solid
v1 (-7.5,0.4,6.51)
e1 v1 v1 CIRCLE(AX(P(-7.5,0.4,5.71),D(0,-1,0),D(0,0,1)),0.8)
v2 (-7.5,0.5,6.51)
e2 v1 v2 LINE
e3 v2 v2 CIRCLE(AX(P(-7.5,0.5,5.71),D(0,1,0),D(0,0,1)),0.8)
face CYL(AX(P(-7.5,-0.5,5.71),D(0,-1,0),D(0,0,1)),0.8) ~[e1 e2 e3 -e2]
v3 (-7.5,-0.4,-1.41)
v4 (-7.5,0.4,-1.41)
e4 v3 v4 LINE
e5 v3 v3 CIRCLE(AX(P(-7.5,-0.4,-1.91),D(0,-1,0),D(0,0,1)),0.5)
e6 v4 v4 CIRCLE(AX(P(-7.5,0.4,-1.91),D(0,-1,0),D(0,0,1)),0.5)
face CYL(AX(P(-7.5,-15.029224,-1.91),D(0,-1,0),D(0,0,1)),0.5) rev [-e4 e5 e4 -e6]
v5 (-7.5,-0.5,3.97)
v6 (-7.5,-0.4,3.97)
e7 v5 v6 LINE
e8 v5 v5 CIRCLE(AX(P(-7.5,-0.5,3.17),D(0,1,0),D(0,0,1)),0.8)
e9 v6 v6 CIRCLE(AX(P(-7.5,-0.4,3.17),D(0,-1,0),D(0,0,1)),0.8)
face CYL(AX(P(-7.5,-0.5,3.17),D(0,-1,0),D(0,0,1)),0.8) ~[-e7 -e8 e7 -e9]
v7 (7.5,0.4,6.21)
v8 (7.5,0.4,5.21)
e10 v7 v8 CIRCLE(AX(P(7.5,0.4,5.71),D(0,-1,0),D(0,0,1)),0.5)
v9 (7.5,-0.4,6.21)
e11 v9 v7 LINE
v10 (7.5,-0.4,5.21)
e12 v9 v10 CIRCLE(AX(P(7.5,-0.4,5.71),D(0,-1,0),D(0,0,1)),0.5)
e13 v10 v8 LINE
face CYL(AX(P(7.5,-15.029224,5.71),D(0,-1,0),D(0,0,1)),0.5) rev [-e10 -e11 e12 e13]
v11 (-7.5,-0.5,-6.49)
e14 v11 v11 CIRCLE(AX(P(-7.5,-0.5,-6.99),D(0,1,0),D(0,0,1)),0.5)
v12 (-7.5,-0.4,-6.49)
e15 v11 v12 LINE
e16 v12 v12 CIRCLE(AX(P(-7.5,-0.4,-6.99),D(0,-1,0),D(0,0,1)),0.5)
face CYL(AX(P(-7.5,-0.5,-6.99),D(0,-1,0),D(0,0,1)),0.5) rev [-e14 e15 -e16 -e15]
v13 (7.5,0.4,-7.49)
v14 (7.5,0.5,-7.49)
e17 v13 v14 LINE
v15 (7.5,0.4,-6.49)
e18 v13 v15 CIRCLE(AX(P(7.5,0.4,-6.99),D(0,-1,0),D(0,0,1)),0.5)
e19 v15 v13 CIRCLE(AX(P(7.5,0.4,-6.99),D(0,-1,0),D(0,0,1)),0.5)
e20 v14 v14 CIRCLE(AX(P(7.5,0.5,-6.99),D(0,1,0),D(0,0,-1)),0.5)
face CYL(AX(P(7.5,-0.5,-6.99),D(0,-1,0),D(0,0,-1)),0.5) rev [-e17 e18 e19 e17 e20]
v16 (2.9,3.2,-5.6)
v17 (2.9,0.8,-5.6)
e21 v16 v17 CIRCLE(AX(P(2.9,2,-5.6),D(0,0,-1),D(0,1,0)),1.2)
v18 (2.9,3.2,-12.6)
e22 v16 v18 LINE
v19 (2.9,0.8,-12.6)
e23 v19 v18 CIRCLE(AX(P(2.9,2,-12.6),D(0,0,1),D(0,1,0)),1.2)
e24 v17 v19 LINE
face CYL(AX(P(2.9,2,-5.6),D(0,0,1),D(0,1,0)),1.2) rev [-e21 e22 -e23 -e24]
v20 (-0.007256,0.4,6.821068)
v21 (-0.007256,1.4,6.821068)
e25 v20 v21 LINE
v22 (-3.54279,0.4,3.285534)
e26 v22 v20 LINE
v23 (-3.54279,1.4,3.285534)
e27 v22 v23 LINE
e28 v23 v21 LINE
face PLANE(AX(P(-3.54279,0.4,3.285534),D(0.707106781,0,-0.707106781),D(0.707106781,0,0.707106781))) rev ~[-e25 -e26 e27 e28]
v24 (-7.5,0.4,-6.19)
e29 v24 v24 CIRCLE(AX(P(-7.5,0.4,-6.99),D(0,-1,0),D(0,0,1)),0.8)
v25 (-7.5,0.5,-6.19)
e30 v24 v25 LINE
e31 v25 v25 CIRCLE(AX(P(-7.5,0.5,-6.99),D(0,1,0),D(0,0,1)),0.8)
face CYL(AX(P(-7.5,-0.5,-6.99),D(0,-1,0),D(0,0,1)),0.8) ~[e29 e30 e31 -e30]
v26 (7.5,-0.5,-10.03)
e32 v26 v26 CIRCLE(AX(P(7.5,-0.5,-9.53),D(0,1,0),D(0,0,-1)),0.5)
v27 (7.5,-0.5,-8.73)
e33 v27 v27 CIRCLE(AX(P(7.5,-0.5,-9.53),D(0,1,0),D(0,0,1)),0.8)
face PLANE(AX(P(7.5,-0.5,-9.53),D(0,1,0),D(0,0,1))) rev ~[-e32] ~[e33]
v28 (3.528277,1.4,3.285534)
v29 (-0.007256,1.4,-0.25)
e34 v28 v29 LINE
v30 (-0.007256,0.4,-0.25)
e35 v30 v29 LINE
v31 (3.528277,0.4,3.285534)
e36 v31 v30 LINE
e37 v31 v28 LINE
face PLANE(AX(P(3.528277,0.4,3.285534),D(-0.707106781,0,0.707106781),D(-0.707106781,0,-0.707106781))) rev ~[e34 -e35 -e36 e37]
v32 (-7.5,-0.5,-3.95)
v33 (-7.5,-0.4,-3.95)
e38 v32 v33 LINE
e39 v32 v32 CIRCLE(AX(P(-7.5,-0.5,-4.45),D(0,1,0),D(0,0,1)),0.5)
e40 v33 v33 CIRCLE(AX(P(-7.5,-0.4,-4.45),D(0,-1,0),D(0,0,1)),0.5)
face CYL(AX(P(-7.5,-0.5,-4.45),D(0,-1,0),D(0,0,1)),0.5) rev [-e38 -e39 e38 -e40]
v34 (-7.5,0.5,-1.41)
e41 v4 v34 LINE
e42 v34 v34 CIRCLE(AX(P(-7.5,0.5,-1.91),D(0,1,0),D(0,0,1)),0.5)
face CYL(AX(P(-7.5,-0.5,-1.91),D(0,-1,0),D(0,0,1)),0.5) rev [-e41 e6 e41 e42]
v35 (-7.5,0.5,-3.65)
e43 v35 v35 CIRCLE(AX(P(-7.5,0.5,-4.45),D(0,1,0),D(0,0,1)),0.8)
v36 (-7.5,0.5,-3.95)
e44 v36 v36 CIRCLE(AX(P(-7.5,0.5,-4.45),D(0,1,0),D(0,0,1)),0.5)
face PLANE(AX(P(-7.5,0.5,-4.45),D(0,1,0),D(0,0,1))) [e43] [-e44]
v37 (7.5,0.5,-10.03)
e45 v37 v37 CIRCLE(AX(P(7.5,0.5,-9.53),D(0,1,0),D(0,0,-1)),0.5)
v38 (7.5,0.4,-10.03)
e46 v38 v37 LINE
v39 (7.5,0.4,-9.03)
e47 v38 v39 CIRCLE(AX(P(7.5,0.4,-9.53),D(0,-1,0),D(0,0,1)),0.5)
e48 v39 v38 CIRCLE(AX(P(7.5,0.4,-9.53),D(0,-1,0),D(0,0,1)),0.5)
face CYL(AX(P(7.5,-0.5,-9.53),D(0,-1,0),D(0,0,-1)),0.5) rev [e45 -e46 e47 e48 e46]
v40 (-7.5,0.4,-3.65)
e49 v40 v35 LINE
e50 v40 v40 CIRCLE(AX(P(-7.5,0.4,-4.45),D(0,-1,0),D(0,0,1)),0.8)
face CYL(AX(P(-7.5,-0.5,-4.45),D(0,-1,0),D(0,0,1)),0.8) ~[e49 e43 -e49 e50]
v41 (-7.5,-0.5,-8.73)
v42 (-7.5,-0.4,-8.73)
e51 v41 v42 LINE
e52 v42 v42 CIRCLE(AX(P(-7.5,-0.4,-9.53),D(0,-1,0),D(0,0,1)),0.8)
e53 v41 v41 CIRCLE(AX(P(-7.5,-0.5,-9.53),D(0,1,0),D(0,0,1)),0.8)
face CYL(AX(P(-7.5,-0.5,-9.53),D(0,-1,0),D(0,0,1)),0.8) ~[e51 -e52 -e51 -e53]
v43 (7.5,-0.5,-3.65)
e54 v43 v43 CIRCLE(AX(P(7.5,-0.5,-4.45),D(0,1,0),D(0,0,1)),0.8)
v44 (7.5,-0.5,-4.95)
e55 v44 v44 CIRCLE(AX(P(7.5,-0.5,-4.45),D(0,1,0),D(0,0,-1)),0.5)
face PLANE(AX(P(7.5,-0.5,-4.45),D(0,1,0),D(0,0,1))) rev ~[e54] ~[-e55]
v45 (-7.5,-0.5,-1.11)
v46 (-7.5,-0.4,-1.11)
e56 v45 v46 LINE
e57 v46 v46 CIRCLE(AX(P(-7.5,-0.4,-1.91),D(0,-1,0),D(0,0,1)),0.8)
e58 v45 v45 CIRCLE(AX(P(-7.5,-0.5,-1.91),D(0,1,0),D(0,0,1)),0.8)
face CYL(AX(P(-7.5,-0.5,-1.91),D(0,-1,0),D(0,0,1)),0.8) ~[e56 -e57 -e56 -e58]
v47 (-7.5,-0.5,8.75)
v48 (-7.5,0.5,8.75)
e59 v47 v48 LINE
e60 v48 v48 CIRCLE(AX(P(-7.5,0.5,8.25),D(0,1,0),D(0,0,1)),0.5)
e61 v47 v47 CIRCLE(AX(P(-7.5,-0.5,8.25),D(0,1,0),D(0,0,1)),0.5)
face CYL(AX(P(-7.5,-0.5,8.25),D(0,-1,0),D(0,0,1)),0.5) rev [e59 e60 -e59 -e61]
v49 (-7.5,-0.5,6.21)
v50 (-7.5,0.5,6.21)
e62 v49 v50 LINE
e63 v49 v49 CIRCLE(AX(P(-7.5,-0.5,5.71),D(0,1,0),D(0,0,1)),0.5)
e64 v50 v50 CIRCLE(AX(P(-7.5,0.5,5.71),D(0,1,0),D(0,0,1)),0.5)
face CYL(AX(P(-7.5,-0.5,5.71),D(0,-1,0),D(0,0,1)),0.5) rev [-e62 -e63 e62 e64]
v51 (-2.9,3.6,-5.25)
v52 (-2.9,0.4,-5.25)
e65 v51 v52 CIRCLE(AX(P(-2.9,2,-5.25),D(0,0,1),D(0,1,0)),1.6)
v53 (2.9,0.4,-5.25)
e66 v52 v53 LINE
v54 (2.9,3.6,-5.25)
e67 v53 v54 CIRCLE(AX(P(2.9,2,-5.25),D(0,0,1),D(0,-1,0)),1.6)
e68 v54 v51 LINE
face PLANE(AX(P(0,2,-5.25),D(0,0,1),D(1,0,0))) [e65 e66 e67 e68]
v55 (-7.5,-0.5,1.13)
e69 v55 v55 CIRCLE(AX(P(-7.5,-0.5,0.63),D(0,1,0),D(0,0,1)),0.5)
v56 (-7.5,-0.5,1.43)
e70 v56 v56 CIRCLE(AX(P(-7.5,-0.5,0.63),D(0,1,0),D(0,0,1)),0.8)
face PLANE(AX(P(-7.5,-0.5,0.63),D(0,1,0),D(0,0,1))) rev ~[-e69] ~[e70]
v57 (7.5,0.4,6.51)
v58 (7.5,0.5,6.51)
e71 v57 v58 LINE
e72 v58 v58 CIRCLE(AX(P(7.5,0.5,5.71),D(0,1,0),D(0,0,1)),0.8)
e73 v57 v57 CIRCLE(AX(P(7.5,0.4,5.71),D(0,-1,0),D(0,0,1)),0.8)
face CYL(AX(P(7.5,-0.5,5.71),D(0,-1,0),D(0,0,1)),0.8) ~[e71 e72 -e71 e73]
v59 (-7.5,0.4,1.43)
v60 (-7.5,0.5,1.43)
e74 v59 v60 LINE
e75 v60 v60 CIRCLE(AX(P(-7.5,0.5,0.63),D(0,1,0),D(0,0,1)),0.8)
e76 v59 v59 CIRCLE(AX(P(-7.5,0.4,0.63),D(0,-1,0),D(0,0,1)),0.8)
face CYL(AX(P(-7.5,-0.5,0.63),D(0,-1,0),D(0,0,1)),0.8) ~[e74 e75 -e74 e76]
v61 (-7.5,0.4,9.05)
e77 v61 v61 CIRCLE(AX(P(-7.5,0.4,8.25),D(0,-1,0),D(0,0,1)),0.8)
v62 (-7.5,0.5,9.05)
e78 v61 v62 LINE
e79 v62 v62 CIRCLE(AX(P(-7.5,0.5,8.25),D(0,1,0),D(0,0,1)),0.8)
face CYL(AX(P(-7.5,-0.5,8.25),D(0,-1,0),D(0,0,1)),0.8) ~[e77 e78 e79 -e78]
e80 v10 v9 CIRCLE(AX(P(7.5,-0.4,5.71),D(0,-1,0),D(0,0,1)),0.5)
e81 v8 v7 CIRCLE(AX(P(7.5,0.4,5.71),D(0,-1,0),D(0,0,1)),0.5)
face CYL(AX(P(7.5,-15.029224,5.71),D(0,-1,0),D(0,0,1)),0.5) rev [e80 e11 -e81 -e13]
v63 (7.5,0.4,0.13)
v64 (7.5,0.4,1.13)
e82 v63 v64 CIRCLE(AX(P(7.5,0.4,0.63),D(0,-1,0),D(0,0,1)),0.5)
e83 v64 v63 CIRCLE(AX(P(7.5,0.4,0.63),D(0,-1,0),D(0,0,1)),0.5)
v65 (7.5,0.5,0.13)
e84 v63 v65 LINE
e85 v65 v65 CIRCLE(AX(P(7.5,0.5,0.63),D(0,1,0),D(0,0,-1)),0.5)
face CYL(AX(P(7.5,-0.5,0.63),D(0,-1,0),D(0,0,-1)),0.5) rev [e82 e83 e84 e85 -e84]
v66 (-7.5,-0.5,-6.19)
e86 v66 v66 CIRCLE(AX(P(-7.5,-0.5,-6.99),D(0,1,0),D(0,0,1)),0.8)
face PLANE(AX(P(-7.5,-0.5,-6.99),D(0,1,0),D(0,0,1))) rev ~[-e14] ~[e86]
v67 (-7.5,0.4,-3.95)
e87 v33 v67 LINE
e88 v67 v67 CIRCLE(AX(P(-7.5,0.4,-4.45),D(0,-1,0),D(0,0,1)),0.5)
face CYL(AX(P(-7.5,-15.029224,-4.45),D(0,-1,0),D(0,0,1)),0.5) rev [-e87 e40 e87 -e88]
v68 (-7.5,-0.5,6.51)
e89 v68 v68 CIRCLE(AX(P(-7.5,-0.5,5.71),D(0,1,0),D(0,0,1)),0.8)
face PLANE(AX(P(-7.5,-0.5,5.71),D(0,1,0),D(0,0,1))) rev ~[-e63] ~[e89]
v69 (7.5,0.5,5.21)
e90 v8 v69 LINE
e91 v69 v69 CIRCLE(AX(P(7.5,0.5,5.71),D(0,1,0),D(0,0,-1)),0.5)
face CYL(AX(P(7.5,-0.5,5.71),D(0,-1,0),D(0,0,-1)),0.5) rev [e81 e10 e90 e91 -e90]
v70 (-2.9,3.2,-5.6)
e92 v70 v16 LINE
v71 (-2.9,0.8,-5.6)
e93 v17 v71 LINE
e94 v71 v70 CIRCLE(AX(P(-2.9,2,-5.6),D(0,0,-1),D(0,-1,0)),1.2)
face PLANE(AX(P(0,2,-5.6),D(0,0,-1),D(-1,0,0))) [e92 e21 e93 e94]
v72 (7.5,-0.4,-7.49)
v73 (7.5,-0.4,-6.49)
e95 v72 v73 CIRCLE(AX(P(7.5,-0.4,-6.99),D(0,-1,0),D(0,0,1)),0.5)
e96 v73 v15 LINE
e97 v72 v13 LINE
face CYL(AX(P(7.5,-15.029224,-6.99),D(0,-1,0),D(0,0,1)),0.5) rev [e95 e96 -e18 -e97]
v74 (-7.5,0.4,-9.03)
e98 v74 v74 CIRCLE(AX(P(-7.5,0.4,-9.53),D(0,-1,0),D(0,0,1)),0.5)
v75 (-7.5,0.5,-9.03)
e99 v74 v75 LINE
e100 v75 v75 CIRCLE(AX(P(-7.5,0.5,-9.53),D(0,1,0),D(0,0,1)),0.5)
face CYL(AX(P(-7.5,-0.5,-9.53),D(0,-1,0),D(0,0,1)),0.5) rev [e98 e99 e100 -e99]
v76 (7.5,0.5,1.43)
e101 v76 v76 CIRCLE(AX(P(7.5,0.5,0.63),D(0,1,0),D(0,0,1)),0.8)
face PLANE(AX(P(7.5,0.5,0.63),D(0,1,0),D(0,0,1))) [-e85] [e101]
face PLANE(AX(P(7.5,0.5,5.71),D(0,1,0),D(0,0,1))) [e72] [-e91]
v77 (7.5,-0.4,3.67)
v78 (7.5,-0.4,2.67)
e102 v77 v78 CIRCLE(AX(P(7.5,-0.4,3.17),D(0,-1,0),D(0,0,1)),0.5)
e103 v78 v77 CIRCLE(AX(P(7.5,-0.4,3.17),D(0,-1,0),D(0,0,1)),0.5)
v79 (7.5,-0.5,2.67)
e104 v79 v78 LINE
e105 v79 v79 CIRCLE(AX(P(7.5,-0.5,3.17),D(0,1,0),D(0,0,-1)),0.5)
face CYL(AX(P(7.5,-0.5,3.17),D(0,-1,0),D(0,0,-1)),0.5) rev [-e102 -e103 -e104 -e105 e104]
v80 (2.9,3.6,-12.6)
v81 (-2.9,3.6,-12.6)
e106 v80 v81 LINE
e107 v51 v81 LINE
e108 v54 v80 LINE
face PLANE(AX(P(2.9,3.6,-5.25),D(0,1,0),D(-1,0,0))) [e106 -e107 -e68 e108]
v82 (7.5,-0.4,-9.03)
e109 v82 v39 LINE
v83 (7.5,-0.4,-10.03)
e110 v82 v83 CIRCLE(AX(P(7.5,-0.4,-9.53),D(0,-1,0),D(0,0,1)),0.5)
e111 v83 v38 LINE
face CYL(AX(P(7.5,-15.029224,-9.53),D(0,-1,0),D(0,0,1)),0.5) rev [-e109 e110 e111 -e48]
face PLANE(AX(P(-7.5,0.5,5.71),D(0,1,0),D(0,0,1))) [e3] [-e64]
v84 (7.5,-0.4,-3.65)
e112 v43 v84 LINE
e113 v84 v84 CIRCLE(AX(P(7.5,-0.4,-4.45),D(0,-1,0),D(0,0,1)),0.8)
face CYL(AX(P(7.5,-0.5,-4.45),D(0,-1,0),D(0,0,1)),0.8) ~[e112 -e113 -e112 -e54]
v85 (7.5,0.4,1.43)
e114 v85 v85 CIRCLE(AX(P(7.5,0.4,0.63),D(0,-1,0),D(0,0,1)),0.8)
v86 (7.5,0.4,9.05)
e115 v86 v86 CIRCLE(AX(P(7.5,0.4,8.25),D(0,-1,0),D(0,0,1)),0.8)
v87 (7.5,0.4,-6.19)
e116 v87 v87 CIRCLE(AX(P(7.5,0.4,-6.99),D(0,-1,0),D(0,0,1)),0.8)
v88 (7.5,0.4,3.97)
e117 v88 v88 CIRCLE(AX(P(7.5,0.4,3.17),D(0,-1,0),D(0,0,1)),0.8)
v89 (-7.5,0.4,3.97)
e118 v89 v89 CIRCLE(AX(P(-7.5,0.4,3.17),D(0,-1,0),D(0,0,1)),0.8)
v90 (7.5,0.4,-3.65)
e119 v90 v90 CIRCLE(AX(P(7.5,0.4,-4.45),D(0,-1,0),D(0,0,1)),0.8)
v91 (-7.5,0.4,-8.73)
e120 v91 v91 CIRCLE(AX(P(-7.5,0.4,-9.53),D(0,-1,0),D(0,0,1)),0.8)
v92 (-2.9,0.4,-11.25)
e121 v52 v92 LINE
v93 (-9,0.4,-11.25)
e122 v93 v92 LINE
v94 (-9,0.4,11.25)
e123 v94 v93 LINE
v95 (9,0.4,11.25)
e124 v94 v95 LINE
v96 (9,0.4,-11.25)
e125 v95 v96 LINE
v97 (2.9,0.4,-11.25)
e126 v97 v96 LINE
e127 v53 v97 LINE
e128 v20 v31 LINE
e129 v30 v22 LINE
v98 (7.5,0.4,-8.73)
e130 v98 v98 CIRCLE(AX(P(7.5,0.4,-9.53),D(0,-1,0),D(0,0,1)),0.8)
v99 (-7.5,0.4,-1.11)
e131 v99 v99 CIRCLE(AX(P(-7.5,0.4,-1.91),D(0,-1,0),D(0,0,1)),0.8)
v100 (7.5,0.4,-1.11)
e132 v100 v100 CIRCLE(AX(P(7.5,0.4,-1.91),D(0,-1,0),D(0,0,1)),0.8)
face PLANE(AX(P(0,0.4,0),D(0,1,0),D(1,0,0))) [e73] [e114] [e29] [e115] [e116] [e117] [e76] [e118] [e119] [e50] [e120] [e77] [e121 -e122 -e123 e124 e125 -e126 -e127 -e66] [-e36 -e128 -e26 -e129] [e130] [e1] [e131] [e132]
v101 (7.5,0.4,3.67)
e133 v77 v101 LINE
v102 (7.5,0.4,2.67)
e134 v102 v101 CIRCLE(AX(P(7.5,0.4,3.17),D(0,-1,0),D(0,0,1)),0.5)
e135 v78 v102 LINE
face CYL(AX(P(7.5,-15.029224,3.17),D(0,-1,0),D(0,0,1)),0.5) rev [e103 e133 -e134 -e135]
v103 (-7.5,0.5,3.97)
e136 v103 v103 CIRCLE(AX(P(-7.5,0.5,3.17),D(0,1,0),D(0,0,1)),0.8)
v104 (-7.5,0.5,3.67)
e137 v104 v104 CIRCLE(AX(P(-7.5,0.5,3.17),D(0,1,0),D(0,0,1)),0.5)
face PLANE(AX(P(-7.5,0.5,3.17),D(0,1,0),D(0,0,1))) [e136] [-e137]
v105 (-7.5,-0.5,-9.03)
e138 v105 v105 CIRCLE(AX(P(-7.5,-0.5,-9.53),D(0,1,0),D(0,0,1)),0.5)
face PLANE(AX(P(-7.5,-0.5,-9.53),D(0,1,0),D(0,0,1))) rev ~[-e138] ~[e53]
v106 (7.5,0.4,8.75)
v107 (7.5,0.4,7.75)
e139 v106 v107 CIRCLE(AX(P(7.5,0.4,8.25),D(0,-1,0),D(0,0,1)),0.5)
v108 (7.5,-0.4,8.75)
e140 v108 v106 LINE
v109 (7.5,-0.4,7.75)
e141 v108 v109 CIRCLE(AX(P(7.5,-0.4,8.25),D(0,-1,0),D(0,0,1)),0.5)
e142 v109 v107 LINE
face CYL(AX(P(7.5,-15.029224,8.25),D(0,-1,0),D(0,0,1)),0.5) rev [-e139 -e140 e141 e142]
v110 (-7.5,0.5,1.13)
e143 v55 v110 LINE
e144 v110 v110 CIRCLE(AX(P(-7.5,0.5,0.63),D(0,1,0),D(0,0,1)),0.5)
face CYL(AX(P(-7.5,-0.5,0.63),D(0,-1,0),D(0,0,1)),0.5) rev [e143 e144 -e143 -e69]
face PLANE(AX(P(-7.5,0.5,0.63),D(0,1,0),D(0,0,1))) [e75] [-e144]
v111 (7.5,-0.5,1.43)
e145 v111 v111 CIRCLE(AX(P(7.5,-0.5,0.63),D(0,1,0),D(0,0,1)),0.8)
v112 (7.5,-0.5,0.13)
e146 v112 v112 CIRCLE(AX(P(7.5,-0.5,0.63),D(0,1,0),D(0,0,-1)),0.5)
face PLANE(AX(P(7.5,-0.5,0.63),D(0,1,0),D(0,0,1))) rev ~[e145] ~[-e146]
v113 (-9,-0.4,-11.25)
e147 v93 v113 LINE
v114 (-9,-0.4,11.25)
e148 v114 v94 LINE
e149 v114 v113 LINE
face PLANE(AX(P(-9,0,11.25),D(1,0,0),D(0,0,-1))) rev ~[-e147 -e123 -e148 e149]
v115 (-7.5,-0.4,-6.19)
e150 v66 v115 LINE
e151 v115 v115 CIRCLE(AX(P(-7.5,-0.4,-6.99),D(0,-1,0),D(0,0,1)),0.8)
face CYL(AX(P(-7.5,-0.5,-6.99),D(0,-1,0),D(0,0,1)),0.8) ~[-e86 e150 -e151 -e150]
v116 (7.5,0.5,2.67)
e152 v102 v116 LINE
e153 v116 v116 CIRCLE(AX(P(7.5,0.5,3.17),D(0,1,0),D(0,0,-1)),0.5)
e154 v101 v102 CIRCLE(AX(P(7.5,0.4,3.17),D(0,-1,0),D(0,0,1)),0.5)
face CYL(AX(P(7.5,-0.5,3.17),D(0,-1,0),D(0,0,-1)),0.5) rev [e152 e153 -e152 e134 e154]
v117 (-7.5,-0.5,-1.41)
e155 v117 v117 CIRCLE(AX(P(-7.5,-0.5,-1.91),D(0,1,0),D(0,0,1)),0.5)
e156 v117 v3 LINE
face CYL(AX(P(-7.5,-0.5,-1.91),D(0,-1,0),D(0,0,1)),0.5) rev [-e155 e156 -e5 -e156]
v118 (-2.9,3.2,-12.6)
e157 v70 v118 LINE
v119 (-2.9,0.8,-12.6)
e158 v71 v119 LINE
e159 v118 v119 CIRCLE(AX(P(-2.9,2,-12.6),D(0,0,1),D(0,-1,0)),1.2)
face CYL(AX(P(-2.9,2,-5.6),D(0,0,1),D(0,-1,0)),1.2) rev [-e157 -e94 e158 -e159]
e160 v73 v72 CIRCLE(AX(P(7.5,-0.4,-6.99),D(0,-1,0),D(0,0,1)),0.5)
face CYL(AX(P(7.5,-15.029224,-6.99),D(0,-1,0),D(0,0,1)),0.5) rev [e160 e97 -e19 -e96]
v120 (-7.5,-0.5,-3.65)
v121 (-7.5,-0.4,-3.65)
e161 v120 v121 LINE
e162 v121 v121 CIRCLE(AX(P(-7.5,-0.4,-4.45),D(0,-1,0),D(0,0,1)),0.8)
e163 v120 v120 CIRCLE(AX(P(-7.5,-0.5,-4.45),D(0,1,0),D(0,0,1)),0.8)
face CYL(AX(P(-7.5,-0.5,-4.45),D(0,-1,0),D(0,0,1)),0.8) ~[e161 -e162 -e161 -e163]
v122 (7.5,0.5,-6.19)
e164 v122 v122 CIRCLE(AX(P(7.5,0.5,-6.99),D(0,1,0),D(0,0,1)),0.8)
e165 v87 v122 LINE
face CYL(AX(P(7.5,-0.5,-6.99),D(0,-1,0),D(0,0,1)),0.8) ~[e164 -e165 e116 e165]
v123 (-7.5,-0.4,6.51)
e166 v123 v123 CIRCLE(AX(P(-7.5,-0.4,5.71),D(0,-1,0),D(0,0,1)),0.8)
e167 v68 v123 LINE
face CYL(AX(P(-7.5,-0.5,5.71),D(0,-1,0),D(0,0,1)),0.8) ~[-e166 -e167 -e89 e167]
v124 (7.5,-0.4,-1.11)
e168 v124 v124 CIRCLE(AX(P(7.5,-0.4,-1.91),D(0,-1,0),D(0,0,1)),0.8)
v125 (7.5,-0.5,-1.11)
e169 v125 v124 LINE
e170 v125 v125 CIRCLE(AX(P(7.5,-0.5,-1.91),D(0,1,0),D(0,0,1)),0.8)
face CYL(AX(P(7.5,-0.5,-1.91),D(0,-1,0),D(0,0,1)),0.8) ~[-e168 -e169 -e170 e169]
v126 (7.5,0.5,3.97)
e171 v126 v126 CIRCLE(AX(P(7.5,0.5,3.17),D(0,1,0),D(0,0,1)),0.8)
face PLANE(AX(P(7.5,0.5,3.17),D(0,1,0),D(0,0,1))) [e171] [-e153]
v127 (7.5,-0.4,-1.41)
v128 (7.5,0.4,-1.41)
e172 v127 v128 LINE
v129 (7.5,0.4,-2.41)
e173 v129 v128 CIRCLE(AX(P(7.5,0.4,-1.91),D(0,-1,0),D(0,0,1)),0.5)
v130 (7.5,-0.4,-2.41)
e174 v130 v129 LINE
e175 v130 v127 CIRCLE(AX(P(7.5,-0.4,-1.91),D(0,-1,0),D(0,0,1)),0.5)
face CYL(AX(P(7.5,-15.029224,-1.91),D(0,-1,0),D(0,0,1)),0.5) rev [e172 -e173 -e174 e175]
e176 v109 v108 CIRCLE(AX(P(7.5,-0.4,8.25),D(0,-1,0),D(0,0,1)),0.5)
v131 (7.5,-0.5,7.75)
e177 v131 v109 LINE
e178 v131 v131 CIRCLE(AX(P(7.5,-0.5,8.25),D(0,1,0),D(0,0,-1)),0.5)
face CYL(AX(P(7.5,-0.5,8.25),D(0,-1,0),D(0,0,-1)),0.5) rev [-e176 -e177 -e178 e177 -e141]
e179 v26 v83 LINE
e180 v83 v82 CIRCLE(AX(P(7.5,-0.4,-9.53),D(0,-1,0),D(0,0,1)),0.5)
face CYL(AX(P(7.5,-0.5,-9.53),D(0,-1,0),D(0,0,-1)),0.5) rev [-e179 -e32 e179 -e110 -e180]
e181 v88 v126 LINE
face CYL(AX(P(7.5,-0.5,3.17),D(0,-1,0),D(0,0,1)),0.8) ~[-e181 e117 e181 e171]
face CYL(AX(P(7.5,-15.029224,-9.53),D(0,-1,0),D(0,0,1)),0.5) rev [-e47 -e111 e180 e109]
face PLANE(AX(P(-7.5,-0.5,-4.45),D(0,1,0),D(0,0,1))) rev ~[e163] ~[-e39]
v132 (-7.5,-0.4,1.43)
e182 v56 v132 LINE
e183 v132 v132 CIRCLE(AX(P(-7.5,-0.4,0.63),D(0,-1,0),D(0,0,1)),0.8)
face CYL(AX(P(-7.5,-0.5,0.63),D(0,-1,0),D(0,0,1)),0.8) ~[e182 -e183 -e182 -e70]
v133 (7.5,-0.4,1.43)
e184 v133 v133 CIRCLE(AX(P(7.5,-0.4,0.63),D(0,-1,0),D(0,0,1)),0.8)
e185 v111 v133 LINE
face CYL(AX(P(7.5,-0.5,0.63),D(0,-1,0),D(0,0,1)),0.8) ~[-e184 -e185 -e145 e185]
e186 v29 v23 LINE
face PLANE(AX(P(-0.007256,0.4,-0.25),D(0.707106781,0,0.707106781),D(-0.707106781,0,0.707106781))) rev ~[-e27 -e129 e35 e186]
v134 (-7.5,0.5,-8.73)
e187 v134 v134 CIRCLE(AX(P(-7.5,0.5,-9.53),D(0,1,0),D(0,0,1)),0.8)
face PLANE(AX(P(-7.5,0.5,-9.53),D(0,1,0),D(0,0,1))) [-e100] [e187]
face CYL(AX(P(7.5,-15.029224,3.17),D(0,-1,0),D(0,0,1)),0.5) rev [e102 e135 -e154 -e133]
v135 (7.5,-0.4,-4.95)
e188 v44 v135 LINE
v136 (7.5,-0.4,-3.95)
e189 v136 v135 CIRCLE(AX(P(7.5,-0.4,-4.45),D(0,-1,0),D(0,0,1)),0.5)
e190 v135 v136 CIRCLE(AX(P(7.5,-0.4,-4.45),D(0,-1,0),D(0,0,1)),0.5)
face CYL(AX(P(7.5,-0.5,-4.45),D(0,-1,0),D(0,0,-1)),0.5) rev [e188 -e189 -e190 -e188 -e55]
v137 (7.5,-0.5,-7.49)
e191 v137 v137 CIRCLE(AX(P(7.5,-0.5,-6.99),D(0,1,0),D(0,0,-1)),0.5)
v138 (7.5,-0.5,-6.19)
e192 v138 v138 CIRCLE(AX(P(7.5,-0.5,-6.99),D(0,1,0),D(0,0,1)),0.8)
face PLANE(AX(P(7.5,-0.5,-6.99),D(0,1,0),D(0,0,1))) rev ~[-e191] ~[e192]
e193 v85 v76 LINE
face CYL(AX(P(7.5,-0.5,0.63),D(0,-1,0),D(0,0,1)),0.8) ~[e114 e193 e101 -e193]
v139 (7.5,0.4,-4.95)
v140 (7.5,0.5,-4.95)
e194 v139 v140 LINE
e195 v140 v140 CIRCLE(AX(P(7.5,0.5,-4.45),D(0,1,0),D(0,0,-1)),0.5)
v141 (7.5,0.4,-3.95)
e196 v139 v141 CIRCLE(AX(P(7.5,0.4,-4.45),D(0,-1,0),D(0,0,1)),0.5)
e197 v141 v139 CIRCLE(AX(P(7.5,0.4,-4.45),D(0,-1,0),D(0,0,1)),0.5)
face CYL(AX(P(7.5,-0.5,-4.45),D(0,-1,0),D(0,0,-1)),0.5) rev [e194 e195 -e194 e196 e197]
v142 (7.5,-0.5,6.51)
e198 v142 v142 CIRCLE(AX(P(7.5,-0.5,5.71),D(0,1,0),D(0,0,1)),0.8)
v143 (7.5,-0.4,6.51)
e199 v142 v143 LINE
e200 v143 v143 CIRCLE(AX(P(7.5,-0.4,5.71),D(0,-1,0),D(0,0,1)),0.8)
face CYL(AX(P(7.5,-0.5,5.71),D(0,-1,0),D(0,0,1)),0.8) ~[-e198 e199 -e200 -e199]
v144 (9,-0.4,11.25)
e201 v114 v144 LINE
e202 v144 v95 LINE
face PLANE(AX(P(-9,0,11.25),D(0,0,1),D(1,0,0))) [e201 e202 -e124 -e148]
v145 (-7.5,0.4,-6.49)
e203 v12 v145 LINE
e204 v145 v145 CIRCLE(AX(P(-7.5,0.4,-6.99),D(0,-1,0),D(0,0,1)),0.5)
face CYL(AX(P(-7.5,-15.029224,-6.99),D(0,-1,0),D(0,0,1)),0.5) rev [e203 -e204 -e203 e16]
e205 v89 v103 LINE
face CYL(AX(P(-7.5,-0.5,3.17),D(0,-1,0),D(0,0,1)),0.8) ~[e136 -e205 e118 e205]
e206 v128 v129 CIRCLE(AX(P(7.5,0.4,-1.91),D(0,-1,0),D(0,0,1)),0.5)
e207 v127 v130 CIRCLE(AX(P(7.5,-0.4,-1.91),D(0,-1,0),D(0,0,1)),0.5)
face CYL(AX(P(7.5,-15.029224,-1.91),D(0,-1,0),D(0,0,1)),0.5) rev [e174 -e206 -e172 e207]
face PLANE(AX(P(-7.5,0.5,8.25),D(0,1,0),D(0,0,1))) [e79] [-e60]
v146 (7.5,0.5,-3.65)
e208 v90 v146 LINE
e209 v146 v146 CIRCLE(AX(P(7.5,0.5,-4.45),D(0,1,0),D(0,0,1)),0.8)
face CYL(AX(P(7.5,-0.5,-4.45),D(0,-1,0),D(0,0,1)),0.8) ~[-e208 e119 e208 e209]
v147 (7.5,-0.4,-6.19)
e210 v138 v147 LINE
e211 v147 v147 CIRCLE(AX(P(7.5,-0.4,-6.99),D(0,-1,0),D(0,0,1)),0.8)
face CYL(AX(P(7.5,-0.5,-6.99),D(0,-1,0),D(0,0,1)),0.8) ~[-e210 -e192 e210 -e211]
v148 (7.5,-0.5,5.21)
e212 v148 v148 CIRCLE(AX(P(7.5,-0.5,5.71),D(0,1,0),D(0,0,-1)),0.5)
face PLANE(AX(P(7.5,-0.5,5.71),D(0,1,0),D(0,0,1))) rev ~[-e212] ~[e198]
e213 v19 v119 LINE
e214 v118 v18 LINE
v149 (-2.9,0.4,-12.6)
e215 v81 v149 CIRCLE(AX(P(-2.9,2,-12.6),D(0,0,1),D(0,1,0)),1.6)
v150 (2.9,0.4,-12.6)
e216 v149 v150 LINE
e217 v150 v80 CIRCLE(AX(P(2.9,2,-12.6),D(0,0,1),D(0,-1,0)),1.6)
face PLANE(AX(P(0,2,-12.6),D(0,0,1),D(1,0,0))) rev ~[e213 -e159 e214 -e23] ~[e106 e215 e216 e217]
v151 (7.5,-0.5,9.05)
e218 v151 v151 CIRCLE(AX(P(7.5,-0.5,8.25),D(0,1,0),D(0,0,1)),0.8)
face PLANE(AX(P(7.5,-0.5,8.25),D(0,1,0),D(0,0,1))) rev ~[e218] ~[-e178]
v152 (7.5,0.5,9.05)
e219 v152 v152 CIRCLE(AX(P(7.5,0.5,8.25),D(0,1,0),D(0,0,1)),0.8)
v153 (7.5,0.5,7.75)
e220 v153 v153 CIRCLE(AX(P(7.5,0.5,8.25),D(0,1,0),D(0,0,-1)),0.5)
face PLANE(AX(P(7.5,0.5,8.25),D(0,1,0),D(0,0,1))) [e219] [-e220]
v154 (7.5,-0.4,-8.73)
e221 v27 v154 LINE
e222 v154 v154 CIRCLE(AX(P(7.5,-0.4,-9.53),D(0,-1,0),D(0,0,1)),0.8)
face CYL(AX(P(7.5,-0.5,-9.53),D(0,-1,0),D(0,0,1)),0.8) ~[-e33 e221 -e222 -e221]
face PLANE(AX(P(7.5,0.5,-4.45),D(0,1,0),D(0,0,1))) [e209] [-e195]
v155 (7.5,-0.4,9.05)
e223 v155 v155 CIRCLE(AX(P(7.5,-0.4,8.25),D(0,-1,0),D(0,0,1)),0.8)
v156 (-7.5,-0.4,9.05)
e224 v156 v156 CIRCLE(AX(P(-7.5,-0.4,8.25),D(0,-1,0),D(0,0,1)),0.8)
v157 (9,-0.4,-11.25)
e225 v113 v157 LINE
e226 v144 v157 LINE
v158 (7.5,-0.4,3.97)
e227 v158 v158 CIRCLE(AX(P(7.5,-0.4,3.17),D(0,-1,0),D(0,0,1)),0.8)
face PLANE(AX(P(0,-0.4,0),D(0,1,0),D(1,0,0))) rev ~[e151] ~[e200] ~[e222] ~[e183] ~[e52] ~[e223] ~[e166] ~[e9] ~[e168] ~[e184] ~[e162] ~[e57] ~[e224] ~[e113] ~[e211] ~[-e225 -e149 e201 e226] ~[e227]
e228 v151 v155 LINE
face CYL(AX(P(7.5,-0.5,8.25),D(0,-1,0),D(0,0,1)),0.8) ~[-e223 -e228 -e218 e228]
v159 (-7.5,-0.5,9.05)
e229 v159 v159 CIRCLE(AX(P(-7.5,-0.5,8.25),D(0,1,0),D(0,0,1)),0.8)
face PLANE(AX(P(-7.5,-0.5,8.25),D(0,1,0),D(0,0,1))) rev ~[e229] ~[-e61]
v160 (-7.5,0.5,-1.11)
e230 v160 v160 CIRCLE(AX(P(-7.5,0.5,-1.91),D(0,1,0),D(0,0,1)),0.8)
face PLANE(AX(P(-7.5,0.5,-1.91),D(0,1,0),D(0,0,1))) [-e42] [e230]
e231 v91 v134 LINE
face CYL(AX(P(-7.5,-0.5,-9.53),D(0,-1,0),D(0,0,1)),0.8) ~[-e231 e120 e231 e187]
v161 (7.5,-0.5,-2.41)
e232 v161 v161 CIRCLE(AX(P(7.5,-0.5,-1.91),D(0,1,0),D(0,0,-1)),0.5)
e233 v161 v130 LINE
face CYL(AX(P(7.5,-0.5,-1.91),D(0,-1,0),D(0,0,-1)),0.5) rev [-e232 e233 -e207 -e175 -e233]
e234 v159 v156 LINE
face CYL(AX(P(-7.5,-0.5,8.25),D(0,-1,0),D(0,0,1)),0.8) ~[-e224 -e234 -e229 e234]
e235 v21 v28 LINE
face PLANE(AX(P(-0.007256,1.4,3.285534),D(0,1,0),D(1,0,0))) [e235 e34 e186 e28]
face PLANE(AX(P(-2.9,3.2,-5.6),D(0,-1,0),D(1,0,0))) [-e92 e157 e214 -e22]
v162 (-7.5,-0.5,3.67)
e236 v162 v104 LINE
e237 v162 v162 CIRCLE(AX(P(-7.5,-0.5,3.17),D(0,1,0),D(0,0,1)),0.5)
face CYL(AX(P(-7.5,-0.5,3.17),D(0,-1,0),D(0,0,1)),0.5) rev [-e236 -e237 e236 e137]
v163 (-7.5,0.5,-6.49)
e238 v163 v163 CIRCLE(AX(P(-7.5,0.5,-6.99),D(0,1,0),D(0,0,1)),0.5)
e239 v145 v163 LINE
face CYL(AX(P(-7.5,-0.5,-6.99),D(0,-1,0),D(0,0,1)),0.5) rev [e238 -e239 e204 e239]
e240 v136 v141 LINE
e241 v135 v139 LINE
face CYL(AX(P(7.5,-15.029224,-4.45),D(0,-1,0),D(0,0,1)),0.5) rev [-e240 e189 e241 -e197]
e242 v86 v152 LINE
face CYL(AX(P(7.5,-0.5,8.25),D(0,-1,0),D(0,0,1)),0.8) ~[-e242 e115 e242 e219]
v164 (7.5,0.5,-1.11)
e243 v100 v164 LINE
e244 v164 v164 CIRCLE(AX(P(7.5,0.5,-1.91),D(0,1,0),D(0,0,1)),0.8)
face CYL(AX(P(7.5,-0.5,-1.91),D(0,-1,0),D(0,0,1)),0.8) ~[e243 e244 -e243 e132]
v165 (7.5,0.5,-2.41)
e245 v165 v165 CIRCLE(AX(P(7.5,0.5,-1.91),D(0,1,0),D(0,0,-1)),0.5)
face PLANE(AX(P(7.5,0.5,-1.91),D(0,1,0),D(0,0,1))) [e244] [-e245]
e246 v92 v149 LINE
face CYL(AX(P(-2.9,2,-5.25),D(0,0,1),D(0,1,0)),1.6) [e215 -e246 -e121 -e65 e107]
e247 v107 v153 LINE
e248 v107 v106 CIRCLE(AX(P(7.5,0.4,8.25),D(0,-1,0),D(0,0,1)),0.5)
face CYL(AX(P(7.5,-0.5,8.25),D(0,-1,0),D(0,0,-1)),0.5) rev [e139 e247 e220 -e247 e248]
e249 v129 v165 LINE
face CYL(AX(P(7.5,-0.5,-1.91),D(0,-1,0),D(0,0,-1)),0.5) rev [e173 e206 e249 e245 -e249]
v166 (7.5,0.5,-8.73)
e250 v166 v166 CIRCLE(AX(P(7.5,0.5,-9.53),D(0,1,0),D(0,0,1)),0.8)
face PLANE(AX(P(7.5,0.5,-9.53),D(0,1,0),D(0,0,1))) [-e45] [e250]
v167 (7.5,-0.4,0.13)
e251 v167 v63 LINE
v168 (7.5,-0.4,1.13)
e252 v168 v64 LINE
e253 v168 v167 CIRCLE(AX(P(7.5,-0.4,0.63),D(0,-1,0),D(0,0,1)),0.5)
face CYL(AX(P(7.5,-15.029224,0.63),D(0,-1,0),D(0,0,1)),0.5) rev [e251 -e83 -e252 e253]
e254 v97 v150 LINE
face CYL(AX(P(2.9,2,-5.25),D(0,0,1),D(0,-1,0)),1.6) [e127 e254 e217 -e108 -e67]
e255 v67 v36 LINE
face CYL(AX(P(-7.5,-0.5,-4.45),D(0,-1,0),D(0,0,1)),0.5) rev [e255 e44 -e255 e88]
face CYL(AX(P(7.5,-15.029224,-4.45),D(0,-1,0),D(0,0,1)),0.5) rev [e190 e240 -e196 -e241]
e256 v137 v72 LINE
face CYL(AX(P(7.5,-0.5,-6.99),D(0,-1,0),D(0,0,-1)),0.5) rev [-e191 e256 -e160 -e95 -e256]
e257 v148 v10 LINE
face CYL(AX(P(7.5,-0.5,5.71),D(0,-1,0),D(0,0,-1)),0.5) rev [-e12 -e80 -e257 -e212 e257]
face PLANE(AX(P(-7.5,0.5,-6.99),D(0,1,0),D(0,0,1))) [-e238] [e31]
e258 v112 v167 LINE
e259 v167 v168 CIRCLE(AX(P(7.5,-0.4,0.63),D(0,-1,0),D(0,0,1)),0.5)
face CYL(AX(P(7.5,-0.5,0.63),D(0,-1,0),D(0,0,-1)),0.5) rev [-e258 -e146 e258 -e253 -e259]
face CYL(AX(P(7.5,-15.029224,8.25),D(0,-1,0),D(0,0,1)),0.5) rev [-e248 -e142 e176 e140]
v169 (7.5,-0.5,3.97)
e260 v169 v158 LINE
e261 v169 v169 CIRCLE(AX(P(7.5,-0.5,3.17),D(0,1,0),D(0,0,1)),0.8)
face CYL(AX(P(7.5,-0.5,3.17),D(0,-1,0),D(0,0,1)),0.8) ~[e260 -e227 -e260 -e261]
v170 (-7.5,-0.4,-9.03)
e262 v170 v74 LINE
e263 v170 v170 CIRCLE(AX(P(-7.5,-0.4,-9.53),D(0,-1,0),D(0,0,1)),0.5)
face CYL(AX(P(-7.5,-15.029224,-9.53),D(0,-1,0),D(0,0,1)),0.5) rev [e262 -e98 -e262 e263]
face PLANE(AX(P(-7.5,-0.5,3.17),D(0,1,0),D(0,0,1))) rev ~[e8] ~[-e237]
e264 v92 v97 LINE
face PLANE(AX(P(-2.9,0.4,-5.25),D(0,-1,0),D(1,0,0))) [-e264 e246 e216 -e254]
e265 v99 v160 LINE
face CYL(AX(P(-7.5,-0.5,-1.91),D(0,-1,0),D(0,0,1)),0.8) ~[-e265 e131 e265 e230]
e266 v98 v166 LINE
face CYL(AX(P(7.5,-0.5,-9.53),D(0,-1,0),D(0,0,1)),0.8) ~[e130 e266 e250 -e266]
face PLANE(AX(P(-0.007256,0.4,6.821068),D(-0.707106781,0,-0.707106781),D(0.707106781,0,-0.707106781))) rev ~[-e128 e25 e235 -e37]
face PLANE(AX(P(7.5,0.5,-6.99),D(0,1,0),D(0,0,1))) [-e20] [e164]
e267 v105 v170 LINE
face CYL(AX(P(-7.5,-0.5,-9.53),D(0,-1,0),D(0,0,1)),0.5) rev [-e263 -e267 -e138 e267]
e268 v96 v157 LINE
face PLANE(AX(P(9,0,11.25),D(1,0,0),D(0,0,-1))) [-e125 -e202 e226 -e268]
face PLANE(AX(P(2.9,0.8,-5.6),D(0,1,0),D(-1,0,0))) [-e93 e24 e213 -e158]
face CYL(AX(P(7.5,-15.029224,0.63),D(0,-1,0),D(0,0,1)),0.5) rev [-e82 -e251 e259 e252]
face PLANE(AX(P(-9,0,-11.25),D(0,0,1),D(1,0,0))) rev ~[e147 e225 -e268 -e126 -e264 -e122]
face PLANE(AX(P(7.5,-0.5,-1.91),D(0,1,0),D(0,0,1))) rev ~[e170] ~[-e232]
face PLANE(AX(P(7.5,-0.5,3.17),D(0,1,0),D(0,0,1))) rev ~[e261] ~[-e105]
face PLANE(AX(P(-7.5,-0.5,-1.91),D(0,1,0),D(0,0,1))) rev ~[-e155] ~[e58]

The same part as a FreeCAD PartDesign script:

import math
import FreeCAD as App
import Part
import Sketcher

V = App.Vector


def add_polygon(sketch, points):
    """Adds a closed chain of lines whose ends are joined by coincident constraints."""
    first, n = sketch.GeometryCount, len(points)
    for a, b in zip(points, points[1:] + points[:1]):
        sketch.addGeometry(Part.LineSegment(App.Vector(*a, 0), App.Vector(*b, 0)), False)
    for i in range(n):
        sketch.addConstraint(Sketcher.Constraint("Coincident", first + i, 2, first + (i + 1) % n, 1))

doc = App.newDocument("Part")
body = doc.addObject("PartDesign::Body", "Body")

sketch1 = body.newObject("Sketcher::SketchObject", "Sketch")
sketch1.AttachmentSupport = (doc.getObject("XZ_Plane"), [""])
sketch1.MapMode = "FlatFace"
add_polygon(sketch1, [(-9, -11), (-9, 11), (9, 11), (9, -11)])
sketch1.addConstraint(Sketcher.Constraint("Vertical", 0))
sketch1.addConstraint(Sketcher.Constraint("Horizontal", 1))
sketch1.addConstraint(Sketcher.Constraint("Vertical", 2))
sketch1.addConstraint(Sketcher.Constraint("Horizontal", 3))
sketch1.addConstraint(Sketcher.Constraint("Symmetric", 0, 2, 2, 2, -1, 1))
sketch1.addConstraint(Sketcher.Constraint("DistanceX", 1, 1, 1, 2, 18.0))
sketch1.addConstraint(Sketcher.Constraint("DistanceY", 0, 1, 0, 2, 22.5))
pad1 = body.newObject("PartDesign::Pad", "Pad")
pad1.Profile = sketch1
pad1.Length = 0.8
pad1.Midplane = True

sketch2 = body.newObject("Sketcher::SketchObject", "Sketch001")
sketch2.AttachmentSupport = (doc.getObject("XZ_Plane"), [""])
sketch2.MapMode = "FlatFace"
sketch2.AttachmentOffset = App.Placement(V(0, 0, -0.4), App.Rotation())
sketch2.addGeometry(Part.Circle(V(7.5, 8.2, 0), V(0, 0, 1), 0.5), False)
sketch2.addGeometry(Part.Circle(V(-7.5, 8.2, 0), V(0, 0, 1), 0.5), False)
sketch2.addGeometry(Part.Circle(V(-7.5, 5.7, 0), V(0, 0, 1), 0.5), False)
sketch2.addGeometry(Part.Circle(V(7.5, 5.7, 0), V(0, 0, 1), 0.5), False)
sketch2.addGeometry(Part.Circle(V(-7.5, 3.2, 0), V(0, 0, 1), 0.5), False)
sketch2.addGeometry(Part.Circle(V(7.5, 3.2, 0), V(0, 0, 1), 0.5), False)
sketch2.addGeometry(Part.Circle(V(-7.5, 0.6, 0), V(0, 0, 1), 0.5), False)
sketch2.addGeometry(Part.Circle(V(7.5, 0.6, 0), V(0, 0, 1), 0.5), False)
sketch2.addGeometry(Part.Circle(V(-7.5, -1.9, 0), V(0, 0, 1), 0.5), False)
sketch2.addGeometry(Part.Circle(V(7.5, -1.9, 0), V(0, 0, 1), 0.5), False)
sketch2.addGeometry(Part.Circle(V(-7.5, -4.5, 0), V(0, 0, 1), 0.5), False)
sketch2.addGeometry(Part.Circle(V(7.5, -4.5, 0), V(0, 0, 1), 0.5), False)
sketch2.addGeometry(Part.Circle(V(-7.5, -7, 0), V(0, 0, 1), 0.5), False)
sketch2.addGeometry(Part.Circle(V(7.5, -7, 0), V(0, 0, 1), 0.5), False)
sketch2.addGeometry(Part.Circle(V(-7.5, -9.5, 0), V(0, 0, 1), 0.5), False)
sketch2.addGeometry(Part.Circle(V(7.5, -9.5, 0), V(0, 0, 1), 0.5), False)
sketch2.addConstraint(Sketcher.Constraint("Equal", 0, 1))
sketch2.addConstraint(Sketcher.Constraint("Equal", 1, 2))
sketch2.addConstraint(Sketcher.Constraint("Equal", 2, 3))
sketch2.addConstraint(Sketcher.Constraint("Equal", 3, 4))
sketch2.addConstraint(Sketcher.Constraint("Equal", 4, 5))
sketch2.addConstraint(Sketcher.Constraint("Equal", 5, 6))
sketch2.addConstraint(Sketcher.Constraint("Equal", 6, 7))
sketch2.addConstraint(Sketcher.Constraint("Equal", 7, 8))
sketch2.addConstraint(Sketcher.Constraint("Equal", 8, 9))
sketch2.addConstraint(Sketcher.Constraint("Equal", 9, 10))
sketch2.addConstraint(Sketcher.Constraint("Equal", 10, 11))
sketch2.addConstraint(Sketcher.Constraint("Equal", 11, 12))
sketch2.addConstraint(Sketcher.Constraint("Equal", 12, 13))
sketch2.addConstraint(Sketcher.Constraint("Equal", 13, 14))
sketch2.addConstraint(Sketcher.Constraint("Equal", 14, 15))
sketch2.addConstraint(Sketcher.Constraint("Symmetric", 0, 3, 1, 3, -2))
sketch2.addConstraint(Sketcher.Constraint("Symmetric", 2, 3, 3, 3, -2))
sketch2.addConstraint(Sketcher.Constraint("Symmetric", 4, 3, 5, 3, -2))
sketch2.addConstraint(Sketcher.Constraint("Symmetric", 6, 3, 7, 3, -2))
sketch2.addConstraint(Sketcher.Constraint("Symmetric", 8, 3, 9, 3, -2))
sketch2.addConstraint(Sketcher.Constraint("Symmetric", 10, 3, 11, 3, -2))
sketch2.addConstraint(Sketcher.Constraint("Symmetric", 12, 3, 13, 3, -2))
sketch2.addConstraint(Sketcher.Constraint("Symmetric", 14, 3, 15, 3, -2))
sketch2.addConstraint(Sketcher.Constraint("Vertical", 1, 3, 2, 3))
sketch2.addConstraint(Sketcher.Constraint("Vertical", 2, 3, 4, 3))
sketch2.addConstraint(Sketcher.Constraint("Vertical", 4, 3, 6, 3))
sketch2.addConstraint(Sketcher.Constraint("Vertical", 6, 3, 8, 3))
sketch2.addConstraint(Sketcher.Constraint("Vertical", 8, 3, 10, 3))
sketch2.addConstraint(Sketcher.Constraint("Vertical", 10, 3, 12, 3))
sketch2.addConstraint(Sketcher.Constraint("Vertical", 12, 3, 14, 3))
sketch2.addConstraint(Sketcher.Constraint("Diameter", 0, 1.0))
sketch2.addConstraint(Sketcher.Constraint("DistanceX", 1, 3, 0, 3, 15.0))
sketch2.addConstraint(Sketcher.Constraint("DistanceY", 10, 3, 1, 3, 12.7))
sketch2.addConstraint(Sketcher.Constraint("DistanceY", 12, 3, 2, 3, 12.7))
sketch2.addConstraint(Sketcher.Constraint("DistanceY", 14, 3, 4, 3, 12.7))
sketch2.addConstraint(Sketcher.Constraint("DistanceY", -1, 1, 0, 3, 8.25))
sketch2.addConstraint(Sketcher.Constraint("DistanceY", -1, 1, 2, 3, 5.71))
sketch2.addConstraint(Sketcher.Constraint("DistanceY", -1, 1, 4, 3, 3.17))
sketch2.addConstraint(Sketcher.Constraint("DistanceY", -1, 1, 6, 3, 0.63))
sketch2.addConstraint(Sketcher.Constraint("DistanceY", 8, 3, -1, 1, 1.91))
pocket1 = body.newObject("PartDesign::Pocket", "Pocket")
pocket1.Profile = sketch2
pocket1.Type = "ThroughAll"
pocket1.Midplane = True

sketch3 = body.newObject("Sketcher::SketchObject", "Sketch002")
sketch3.AttachmentSupport = (doc.getObject("XY_Plane"), [""])
sketch3.MapMode = "FlatFace"
sketch3.AttachmentOffset = App.Placement(V(0, 0, -11.25), App.Rotation())
sketch3.addGeometry(Part.LineSegment(V(-2.9, 3.6, 0), V(2.9, 3.6, 0)), False)
sketch3.addGeometry(Part.ArcOfCircle(Part.Circle(V(2.9, 2, 0), V(0, 0, 1), 1.6), math.radians(-90), math.radians(90)), False)
sketch3.addGeometry(Part.LineSegment(V(2.9, 0.4, 0), V(-2.9, 0.4, 0)), False)
sketch3.addGeometry(Part.ArcOfCircle(Part.Circle(V(-2.9, 2, 0), V(0, 0, 1), 1.6), math.radians(90), math.radians(270)), False)
sketch3.addConstraint(Sketcher.Constraint("Tangent", 0, 2, 1, 2))
sketch3.addConstraint(Sketcher.Constraint("Tangent", 1, 1, 2, 1))
sketch3.addConstraint(Sketcher.Constraint("Tangent", 2, 2, 3, 2))
sketch3.addConstraint(Sketcher.Constraint("Tangent", 3, 1, 0, 1))
sketch3.addConstraint(Sketcher.Constraint("Horizontal", 0))
sketch3.addConstraint(Sketcher.Constraint("Horizontal", 2))
sketch3.addConstraint(Sketcher.Constraint("Radius", 1, 1.6))
sketch3.addConstraint(Sketcher.Constraint("DistanceX", 0, 1, 0, 2, 5.8))
sketch3.addConstraint(Sketcher.Constraint("DistanceY", -1, 1, 1, 3, 2.0))
sketch3.addConstraint(Sketcher.Constraint("DistanceX", -1, 1, 1, 3, 2.9))
pad2 = body.newObject("PartDesign::Pad", "Pad001")
pad2.Profile = sketch3
pad2.Type = "TwoLengths"
pad2.Length = 1.35
pad2.Length2 = 6
pad2.Reversed = True

sketch4 = body.newObject("Sketcher::SketchObject", "Sketch003")
sketch4.AttachmentSupport = (doc.getObject("XY_Plane"), [""])
sketch4.MapMode = "FlatFace"
sketch4.AttachmentOffset = App.Placement(V(0, 0, -12.6), App.Rotation())
sketch4.addGeometry(Part.LineSegment(V(2.9, 0.8, 0), V(-2.9, 0.8, 0)), False)
sketch4.addGeometry(Part.ArcOfCircle(Part.Circle(V(-2.9, 2, 0), V(0, 0, 1), 1.2), math.radians(90), math.radians(270)), False)
sketch4.addGeometry(Part.LineSegment(V(-2.9, 3.2, 0), V(2.9, 3.2, 0)), False)
sketch4.addGeometry(Part.ArcOfCircle(Part.Circle(V(2.9, 2, 0), V(0, 0, 1), 1.2), math.radians(-90), math.radians(90)), False)
sketch4.addConstraint(Sketcher.Constraint("Tangent", 0, 2, 1, 2))
sketch4.addConstraint(Sketcher.Constraint("Tangent", 1, 1, 2, 1))
sketch4.addConstraint(Sketcher.Constraint("Tangent", 2, 2, 3, 2))
sketch4.addConstraint(Sketcher.Constraint("Tangent", 3, 1, 0, 1))
sketch4.addConstraint(Sketcher.Constraint("Horizontal", 0))
sketch4.addConstraint(Sketcher.Constraint("Horizontal", 2))
sketch4.addConstraint(Sketcher.Constraint("Radius", 1, 1.2))
sketch4.addConstraint(Sketcher.Constraint("DistanceX", 0, 2, 0, 1, 5.8))
sketch4.addConstraint(Sketcher.Constraint("DistanceY", -1, 1, 1, 3, 2.0))
sketch4.addConstraint(Sketcher.Constraint("DistanceX", 1, 3, -1, 1, 2.9))
pocket2 = body.newObject("PartDesign::Pocket", "Pocket001")
pocket2.Profile = sketch4
pocket2.Type = "TwoLengths"
pocket2.Length = 26.744563
pocket2.Length2 = 7

sketch5 = body.newObject("Sketcher::SketchObject", "Sketch004")
sketch5.AttachmentSupport = (doc.getObject("XZ_Plane"), [""])
sketch5.MapMode = "FlatFace"
sketch5.AttachmentOffset = App.Placement(V(0, 0, -0.4), App.Rotation())
add_polygon(sketch5, [(-3.5, 3.3), (0, 6.8), (3.5, 3.3), (0, -0.2)])
sketch5.addConstraint(Sketcher.Constraint("Perpendicular", 0, 1))
sketch5.addConstraint(Sketcher.Constraint("Perpendicular", 1, 2))
sketch5.addConstraint(Sketcher.Constraint("Perpendicular", 2, 3))
sketch5.addConstraint(Sketcher.Constraint("Horizontal", 1, 2, 3, 2))
sketch5.addConstraint(Sketcher.Constraint("Vertical", 0, 2, 2, 2))
sketch5.addConstraint(Sketcher.Constraint("Distance", 0, 5.0))
sketch5.addConstraint(Sketcher.Constraint("DistanceY", 2, 2, -1, 1, 0.25))
sketch5.addConstraint(Sketcher.Constraint("DistanceX", 3, 2, -1, 1, 3.54279))
pad3 = body.newObject("PartDesign::Pad", "Pad002")
pad3.Profile = sketch5
pad3.Length = 1
pad3.Reversed = True

sketch6 = body.newObject("Sketcher::SketchObject", "Sketch005")
sketch6.AttachmentSupport = (doc.getObject("XZ_Plane"), [""])
sketch6.MapMode = "FlatFace"
sketch6.AttachmentOffset = App.Placement(V(0, 0, -0.4), App.Rotation())
sketch6.addGeometry(Part.Circle(V(-7.5, 8.2, 0), V(0, 0, 1), 0.8), False)
sketch6.addGeometry(Part.Circle(V(-7.5, 8.2, 0), V(0, 0, 1), 0.5), False)
sketch6.addGeometry(Part.Circle(V(7.5, 8.2, 0), V(0, 0, 1), 0.8), False)
sketch6.addGeometry(Part.Circle(V(7.5, 8.2, 0), V(0, 0, 1), 0.5), False)
sketch6.addGeometry(Part.Circle(V(7.5, 5.7, 0), V(0, 0, 1), 0.8), False)
sketch6.addGeometry(Part.Circle(V(7.5, 5.7, 0), V(0, 0, 1), 0.5), False)
sketch6.addGeometry(Part.Circle(V(-7.5, 5.7, 0), V(0, 0, 1), 0.8), False)
sketch6.addGeometry(Part.Circle(V(-7.5, 5.7, 0), V(0, 0, 1), 0.5), False)
sketch6.addGeometry(Part.Circle(V(7.5, 3.2, 0), V(0, 0, 1), 0.8), False)
sketch6.addGeometry(Part.Circle(V(7.5, 3.2, 0), V(0, 0, 1), 0.5), False)
sketch6.addGeometry(Part.Circle(V(-7.5, 3.2, 0), V(0, 0, 1), 0.8), False)
sketch6.addGeometry(Part.Circle(V(-7.5, 3.2, 0), V(0, 0, 1), 0.5), False)
sketch6.addGeometry(Part.Circle(V(7.5, 0.6, 0), V(0, 0, 1), 0.8), False)
sketch6.addGeometry(Part.Circle(V(7.5, 0.6, 0), V(0, 0, 1), 0.5), False)
sketch6.addGeometry(Part.Circle(V(-7.5, 0.6, 0), V(0, 0, 1), 0.8), False)
sketch6.addGeometry(Part.Circle(V(-7.5, 0.6, 0), V(0, 0, 1), 0.5), False)
sketch6.addGeometry(Part.Circle(V(7.5, -1.9, 0), V(0, 0, 1), 0.8), False)
sketch6.addGeometry(Part.Circle(V(7.5, -1.9, 0), V(0, 0, 1), 0.5), False)
sketch6.addGeometry(Part.Circle(V(-7.5, -1.9, 0), V(0, 0, 1), 0.8), False)
sketch6.addGeometry(Part.Circle(V(-7.5, -1.9, 0), V(0, 0, 1), 0.5), False)
sketch6.addGeometry(Part.Circle(V(7.5, -4.5, 0), V(0, 0, 1), 0.8), False)
sketch6.addGeometry(Part.Circle(V(7.5, -4.5, 0), V(0, 0, 1), 0.5), False)
sketch6.addGeometry(Part.Circle(V(-7.5, -4.5, 0), V(0, 0, 1), 0.8), False)
sketch6.addGeometry(Part.Circle(V(-7.5, -4.5, 0), V(0, 0, 1), 0.5), False)
sketch6.addGeometry(Part.Circle(V(7.5, -7, 0), V(0, 0, 1), 0.8), False)
sketch6.addGeometry(Part.Circle(V(7.5, -7, 0), V(0, 0, 1), 0.5), False)
sketch6.addGeometry(Part.Circle(V(-7.5, -7, 0), V(0, 0, 1), 0.8), False)
sketch6.addGeometry(Part.Circle(V(-7.5, -7, 0), V(0, 0, 1), 0.5), False)
sketch6.addGeometry(Part.Circle(V(7.5, -9.5, 0), V(0, 0, 1), 0.8), False)
sketch6.addGeometry(Part.Circle(V(7.5, -9.5, 0), V(0, 0, 1), 0.5), False)
sketch6.addGeometry(Part.Circle(V(-7.5, -9.5, 0), V(0, 0, 1), 0.8), False)
sketch6.addGeometry(Part.Circle(V(-7.5, -9.5, 0), V(0, 0, 1), 0.5), False)
sketch6.addConstraint(Sketcher.Constraint("Coincident", 1, 3, 0, 3))
sketch6.addConstraint(Sketcher.Constraint("Coincident", 3, 3, 2, 3))
sketch6.addConstraint(Sketcher.Constraint("Coincident", 5, 3, 4, 3))
sketch6.addConstraint(Sketcher.Constraint("Coincident", 7, 3, 6, 3))
sketch6.addConstraint(Sketcher.Constraint("Coincident", 9, 3, 8, 3))
sketch6.addConstraint(Sketcher.Constraint("Coincident", 11, 3, 10, 3))
sketch6.addConstraint(Sketcher.Constraint("Coincident", 13, 3, 12, 3))
sketch6.addConstraint(Sketcher.Constraint("Coincident", 15, 3, 14, 3))
sketch6.addConstraint(Sketcher.Constraint("Coincident", 17, 3, 16, 3))
sketch6.addConstraint(Sketcher.Constraint("Coincident", 19, 3, 18, 3))
sketch6.addConstraint(Sketcher.Constraint("Coincident", 21, 3, 20, 3))
sketch6.addConstraint(Sketcher.Constraint("Coincident", 23, 3, 22, 3))
sketch6.addConstraint(Sketcher.Constraint("Coincident", 25, 3, 24, 3))
sketch6.addConstraint(Sketcher.Constraint("Coincident", 27, 3, 26, 3))
sketch6.addConstraint(Sketcher.Constraint("Coincident", 29, 3, 28, 3))
sketch6.addConstraint(Sketcher.Constraint("Coincident", 31, 3, 30, 3))
sketch6.addConstraint(Sketcher.Constraint("Equal", 0, 2))
sketch6.addConstraint(Sketcher.Constraint("Equal", 1, 3))
sketch6.addConstraint(Sketcher.Constraint("Equal", 2, 4))
sketch6.addConstraint(Sketcher.Constraint("Equal", 3, 5))
sketch6.addConstraint(Sketcher.Constraint("Equal", 4, 6))
sketch6.addConstraint(Sketcher.Constraint("Equal", 5, 7))
sketch6.addConstraint(Sketcher.Constraint("Equal", 6, 8))
sketch6.addConstraint(Sketcher.Constraint("Equal", 7, 9))
sketch6.addConstraint(Sketcher.Constraint("Equal", 8, 10))
sketch6.addConstraint(Sketcher.Constraint("Equal", 9, 11))
sketch6.addConstraint(Sketcher.Constraint("Equal", 10, 12))
sketch6.addConstraint(Sketcher.Constraint("Equal", 11, 13))
sketch6.addConstraint(Sketcher.Constraint("Equal", 12, 14))
sketch6.addConstraint(Sketcher.Constraint("Equal", 13, 15))
sketch6.addConstraint(Sketcher.Constraint("Equal", 14, 16))
sketch6.addConstraint(Sketcher.Constraint("Equal", 15, 17))
sketch6.addConstraint(Sketcher.Constraint("Equal", 16, 18))
sketch6.addConstraint(Sketcher.Constraint("Equal", 17, 19))
sketch6.addConstraint(Sketcher.Constraint("Equal", 18, 20))
sketch6.addConstraint(Sketcher.Constraint("Equal", 19, 21))
sketch6.addConstraint(Sketcher.Constraint("Equal", 20, 22))
sketch6.addConstraint(Sketcher.Constraint("Equal", 21, 23))
sketch6.addConstraint(Sketcher.Constraint("Equal", 22, 24))
sketch6.addConstraint(Sketcher.Constraint("Equal", 23, 25))
sketch6.addConstraint(Sketcher.Constraint("Equal", 24, 26))
sketch6.addConstraint(Sketcher.Constraint("Equal", 25, 27))
sketch6.addConstraint(Sketcher.Constraint("Equal", 26, 28))
sketch6.addConstraint(Sketcher.Constraint("Equal", 27, 29))
sketch6.addConstraint(Sketcher.Constraint("Equal", 28, 30))
sketch6.addConstraint(Sketcher.Constraint("Equal", 29, 31))
sketch6.addConstraint(Sketcher.Constraint("Symmetric", 0, 3, 2, 3, -2))
sketch6.addConstraint(Sketcher.Constraint("Symmetric", 4, 3, 6, 3, -2))
sketch6.addConstraint(Sketcher.Constraint("Symmetric", 8, 3, 10, 3, -2))
sketch6.addConstraint(Sketcher.Constraint("Symmetric", 12, 3, 14, 3, -2))
sketch6.addConstraint(Sketcher.Constraint("Symmetric", 16, 3, 18, 3, -2))
sketch6.addConstraint(Sketcher.Constraint("Symmetric", 20, 3, 22, 3, -2))
sketch6.addConstraint(Sketcher.Constraint("Symmetric", 24, 3, 26, 3, -2))
sketch6.addConstraint(Sketcher.Constraint("Symmetric", 28, 3, 30, 3, -2))
sketch6.addConstraint(Sketcher.Constraint("Vertical", 3, 3, 4, 3))
sketch6.addConstraint(Sketcher.Constraint("Vertical", 5, 3, 8, 3))
sketch6.addConstraint(Sketcher.Constraint("Vertical", 9, 3, 12, 3))
sketch6.addConstraint(Sketcher.Constraint("Vertical", 13, 3, 16, 3))
sketch6.addConstraint(Sketcher.Constraint("Vertical", 17, 3, 20, 3))
sketch6.addConstraint(Sketcher.Constraint("Vertical", 21, 3, 24, 3))
sketch6.addConstraint(Sketcher.Constraint("Vertical", 25, 3, 28, 3))
sketch6.addConstraint(Sketcher.Constraint("Diameter", 1, 1.0))
sketch6.addConstraint(Sketcher.Constraint("Diameter", 0, 1.6))
sketch6.addConstraint(Sketcher.Constraint("DistanceX", 0, 3, 2, 3, 15.0))
sketch6.addConstraint(Sketcher.Constraint("DistanceY", -1, 1, 0, 3, 8.25))
sketch6.addConstraint(Sketcher.Constraint("DistanceY", -1, 1, 4, 3, 5.71))
sketch6.addConstraint(Sketcher.Constraint("DistanceY", -1, 1, 8, 3, 3.17))
sketch6.addConstraint(Sketcher.Constraint("DistanceY", -1, 1, 12, 3, 0.63))
sketch6.addConstraint(Sketcher.Constraint("DistanceY", 16, 3, -1, 1, 1.91))
sketch6.addConstraint(Sketcher.Constraint("DistanceY", 20, 3, -1, 1, 4.45))
sketch6.addConstraint(Sketcher.Constraint("DistanceY", 24, 3, -1, 1, 6.99))
sketch6.addConstraint(Sketcher.Constraint("DistanceY", 28, 3, -1, 1, 9.53))
pad4 = body.newObject("PartDesign::Pad", "Pad003")
pad4.Profile = sketch6
pad4.Type = "TwoLengths"
pad4.Length = 0.1
pad4.Length2 = 0.9
pad4.Reversed = True

doc.recompute()
